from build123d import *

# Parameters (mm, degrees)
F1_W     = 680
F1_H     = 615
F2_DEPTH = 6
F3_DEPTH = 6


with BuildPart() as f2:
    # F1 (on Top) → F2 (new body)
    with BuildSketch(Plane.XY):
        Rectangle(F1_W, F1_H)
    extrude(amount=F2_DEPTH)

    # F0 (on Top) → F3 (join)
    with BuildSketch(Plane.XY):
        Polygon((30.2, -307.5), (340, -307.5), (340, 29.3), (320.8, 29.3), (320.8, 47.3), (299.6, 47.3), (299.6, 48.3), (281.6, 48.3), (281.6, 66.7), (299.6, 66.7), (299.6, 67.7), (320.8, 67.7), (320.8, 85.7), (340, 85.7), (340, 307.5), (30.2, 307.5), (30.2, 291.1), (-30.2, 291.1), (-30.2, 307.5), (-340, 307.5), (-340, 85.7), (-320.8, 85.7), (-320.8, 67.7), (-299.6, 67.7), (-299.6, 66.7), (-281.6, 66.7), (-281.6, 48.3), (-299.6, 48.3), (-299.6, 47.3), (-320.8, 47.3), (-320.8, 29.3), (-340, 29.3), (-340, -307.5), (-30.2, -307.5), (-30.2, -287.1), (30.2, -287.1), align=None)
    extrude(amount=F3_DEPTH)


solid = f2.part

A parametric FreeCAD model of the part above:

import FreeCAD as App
import Part
import Sketcher

doc = App.newDocument("Part")
params = doc.addObject("Spreadsheet::Sheet", "Params")
for row, (alias, value) in enumerate([
    ("sketch1_width", "680 mm"),
    ("sketch1_height", "615 mm"),
    ("pad1_length", "6 mm"),
    ("sketch2_width", "18 mm"),
    ("sketch2_height", "1 mm"),
    ("sketch2_width2", "309.8 mm"),
    ("sketch2_width3", "19.2 mm"),
    ("sketch2_width4", "21.2 mm"),
    ("pad2_length", "6 mm"),
], start=1):
    params.set(f"A{row}", alias)
    params.set(f"B{row}", "=" + value)
    params.setAlias(f"B{row}", alias)

body = doc.addObject("PartDesign::Body", "Body")

# Sketch on XY plane
sketch1 = doc.addObject("Sketcher::SketchObject", "Sketch")
body.addObject(sketch1)
sketch1.AttachmentSupport = (doc.XY_Plane, [""])
sketch1.MapMode = "FlatFace"
sketch1.addGeometry(Part.LineSegment(App.Vector(-340, 308, 0), App.Vector(-340, -308, 0)), False)
sketch1.addGeometry(Part.LineSegment(App.Vector(-340, -308, 0), App.Vector(340, -308, 0)), False)
sketch1.addGeometry(Part.LineSegment(App.Vector(340, -308, 0), App.Vector(340, 308, 0)), False)
sketch1.addGeometry(Part.LineSegment(App.Vector(340, 308, 0), App.Vector(-340, 308, 0)), False)
sketch1.addConstraint(Sketcher.Constraint("Coincident", 0, 2, 1, 1))
sketch1.addConstraint(Sketcher.Constraint("Coincident", 1, 2, 2, 1))
sketch1.addConstraint(Sketcher.Constraint("Coincident", 2, 2, 3, 1))
sketch1.addConstraint(Sketcher.Constraint("Coincident", 3, 2, 0, 1))
sketch1.addConstraint(Sketcher.Constraint("Vertical", 0))
sketch1.addConstraint(Sketcher.Constraint("Horizontal", 1))
sketch1.addConstraint(Sketcher.Constraint("Vertical", 2))
sketch1.addConstraint(Sketcher.Constraint("Horizontal", 3))
sketch1.addConstraint(Sketcher.Constraint("Symmetric", 0, 2, 2, 2, -1, 1))
sketch1.addConstraint(Sketcher.Constraint("DistanceX", 1, 1, 1, 2, 680.0))
sketch1.addConstraint(Sketcher.Constraint("DistanceY", 0, 2, 0, 1, 615.0))
sketch1.setExpression("Constraints[9]", "Params.sketch1_width")
sketch1.setExpression("Constraints[10]", "Params.sketch1_height")
pad1 = doc.addObject("PartDesign::Pad", "Pad")
body.addObject(pad1)
pad1.Profile = sketch1
pad1.setExpression("Length", "Params.pad1_length")

# Sketch on XY plane
sketch2 = doc.addObject("Sketcher::SketchObject", "Sketch001")
body.addObject(sketch2)
sketch2.AttachmentSupport = (doc.XY_Plane, [""])
sketch2.MapMode = "FlatFace"
sketch2.addGeometry(Part.LineSegment(App.Vector(30.2, -307.5, 0), App.Vector(340, -307.5, 0)), False)
sketch2.addGeometry(Part.LineSegment(App.Vector(340, -307.5, 0), App.Vector(340, 29.3, 0)), False)
sketch2.addGeometry(Part.LineSegment(App.Vector(340, 29.3, 0), App.Vector(320.8, 29.3, 0)), False)
sketch2.addGeometry(Part.LineSegment(App.Vector(320.8, 29.3, 0), App.Vector(320.8, 47.3, 0)), False)
sketch2.addGeometry(Part.LineSegment(App.Vector(320.8, 47.3, 0), App.Vector(299.6, 47.3, 0)), False)
sketch2.addGeometry(Part.LineSegment(App.Vector(299.6, 47.3, 0), App.Vector(299.6, 48.3, 0)), False)
sketch2.addGeometry(Part.LineSegment(App.Vector(299.6, 48.3, 0), App.Vector(281.6, 48.3, 0)), False)
sketch2.addGeometry(Part.LineSegment(App.Vector(281.6, 48.3, 0), App.Vector(281.6, 66.7, 0)), False)
sketch2.addGeometry(Part.LineSegment(App.Vector(281.6, 66.7, 0), App.Vector(299.6, 66.7, 0)), False)
sketch2.addGeometry(Part.LineSegment(App.Vector(299.6, 66.7, 0), App.Vector(299.6, 67.7, 0)), False)
sketch2.addGeometry(Part.LineSegment(App.Vector(299.6, 67.7, 0), App.Vector(320.8, 67.7, 0)), False)
sketch2.addGeometry(Part.LineSegment(App.Vector(320.8, 67.7, 0), App.Vector(320.8, 85.7, 0)), False)
sketch2.addGeometry(Part.LineSegment(App.Vector(320.8, 85.7, 0), App.Vector(340, 85.7, 0)), False)
sketch2.addGeometry(Part.LineSegment(App.Vector(340, 85.7, 0), App.Vector(340, 307.5, 0)), False)
sketch2.addGeometry(Part.LineSegment(App.Vector(340, 307.5, 0), App.Vector(30.2, 307.5, 0)), False)
sketch2.addGeometry(Part.LineSegment(App.Vector(30.2, 307.5, 0), App.Vector(30.2, 291.1, 0)), False)
sketch2.addGeometry(Part.LineSegment(App.Vector(30.2, 291.1, 0), App.Vector(-30.2, 291.1, 0)), False)
sketch2.addGeometry(Part.LineSegment(App.Vector(-30.2, 291.1, 0), App.Vector(-30.2, 307.5, 0)), False)
sketch2.addGeometry(Part.LineSegment(App.Vector(-30.2, 307.5, 0), App.Vector(-340, 307.5, 0)), False)
sketch2.addGeometry(Part.LineSegment(App.Vector(-340, 307.5, 0), App.Vector(-340, 85.7, 0)), False)
sketch2.addGeometry(Part.LineSegment(App.Vector(-340, 85.7, 0), App.Vector(-320.8, 85.7, 0)), False)
sketch2.addGeometry(Part.LineSegment(App.Vector(-320.8, 85.7, 0), App.Vector(-320.8, 67.7, 0)), False)
sketch2.addGeometry(Part.LineSegment(App.Vector(-320.8, 67.7, 0), App.Vector(-299.6, 67.7, 0)), False)
sketch2.addGeometry(Part.LineSegment(App.Vector(-299.6, 67.7, 0), App.Vector(-299.6, 66.7, 0)), False)
sketch2.addGeometry(Part.LineSegment(App.Vector(-299.6, 66.7, 0), App.Vector(-281.6, 66.7, 0)), False)
sketch2.addGeometry(Part.LineSegment(App.Vector(-281.6, 66.7, 0), App.Vector(-281.6, 48.3, 0)), False)
sketch2.addGeometry(Part.LineSegment(App.Vector(-281.6, 48.3, 0), App.Vector(-299.6, 48.3, 0)), False)
sketch2.addGeometry(Part.LineSegment(App.Vector(-299.6, 48.3, 0), App.Vector(-299.6, 47.3, 0)), False)
sketch2.addGeometry(Part.LineSegment(App.Vector(-299.6, 47.3, 0), App.Vector(-320.8, 47.3, 0)), False)
sketch2.addGeometry(Part.LineSegment(App.Vector(-320.8, 47.3, 0), App.Vector(-320.8, 29.3, 0)), False)
sketch2.addGeometry(Part.LineSegment(App.Vector(-320.8, 29.3, 0), App.Vector(-340, 29.3, 0)), False)
sketch2.addGeometry(Part.LineSegment(App.Vector(-340, 29.3, 0), App.Vector(-340, -307.5, 0)), False)
sketch2.addGeometry(Part.LineSegment(App.Vector(-340, -307.5, 0), App.Vector(-30.2, -307.5, 0)), False)
sketch2.addGeometry(Part.LineSegment(App.Vector(-30.2, -307.5, 0), App.Vector(-30.2, -287.1, 0)), False)
sketch2.addGeometry(Part.LineSegment(App.Vector(-30.2, -287.1, 0), App.Vector(30.2, -287.1, 0)), False)
sketch2.addGeometry(Part.LineSegment(App.Vector(30.2, -287.1, 0), App.Vector(30.2, -307.5, 0)), False)
sketch2.addConstraint(Sketcher.Constraint("Coincident", 0, 2, 1, 1))
sketch2.addConstraint(Sketcher.Constraint("Coincident", 1, 2, 2, 1))
sketch2.addConstraint(Sketcher.Constraint("Coincident", 2, 2, 3, 1))
sketch2.addConstraint(Sketcher.Constraint("Coincident", 3, 2, 4, 1))
sketch2.addConstraint(Sketcher.Constraint("Coincident", 4, 2, 5, 1))
sketch2.addConstraint(Sketcher.Constraint("Coincident", 5, 2, 6, 1))
sketch2.addConstraint(Sketcher.Constraint("Coincident", 6, 2, 7, 1))
sketch2.addConstraint(Sketcher.Constraint("Coincident", 7, 2, 8, 1))
sketch2.addConstraint(Sketcher.Constraint("Coincident", 8, 2, 9, 1))
sketch2.addConstraint(Sketcher.Constraint("Coincident", 9, 2, 10, 1))
sketch2.addConstraint(Sketcher.Constraint("Coincident", 10, 2, 11, 1))
sketch2.addConstraint(Sketcher.Constraint("Coincident", 11, 2, 12, 1))
sketch2.addConstraint(Sketcher.Constraint("Coincident", 12, 2, 13, 1))
sketch2.addConstraint(Sketcher.Constraint("Coincident", 13, 2, 14, 1))
sketch2.addConstraint(Sketcher.Constraint("Coincident", 14, 2, 15, 1))
sketch2.addConstraint(Sketcher.Constraint("Coincident", 15, 2, 16, 1))
sketch2.addConstraint(Sketcher.Constraint("Coincident", 16, 2, 17, 1))
sketch2.addConstraint(Sketcher.Constraint("Coincident", 17, 2, 18, 1))
sketch2.addConstraint(Sketcher.Constraint("Coincident", 18, 2, 19, 1))
sketch2.addConstraint(Sketcher.Constraint("Coincident", 19, 2, 20, 1))
sketch2.addConstraint(Sketcher.Constraint("Coincident", 20, 2, 21, 1))
sketch2.addConstraint(Sketcher.Constraint("Coincident", 21, 2, 22, 1))
sketch2.addConstraint(Sketcher.Constraint("Coincident", 22, 2, 23, 1))
sketch2.addConstraint(Sketcher.Constraint("Coincident", 23, 2, 24, 1))
sketch2.addConstraint(Sketcher.Constraint("Coincident", 24, 2, 25, 1))
sketch2.addConstraint(Sketcher.Constraint("Coincident", 25, 2, 26, 1))
sketch2.addConstraint(Sketcher.Constraint("Coincident", 26, 2, 27, 1))
sketch2.addConstraint(Sketcher.Constraint("Coincident", 27, 2, 28, 1))
sketch2.addConstraint(Sketcher.Constraint("Coincident", 28, 2, 29, 1))
sketch2.addConstraint(Sketcher.Constraint("Coincident", 29, 2, 30, 1))
sketch2.addConstraint(Sketcher.Constraint("Coincident", 30, 2, 31, 1))
sketch2.addConstraint(Sketcher.Constraint("Coincident", 31, 2, 32, 1))
sketch2.addConstraint(Sketcher.Constraint("Coincident", 32, 2, 33, 1))
sketch2.addConstraint(Sketcher.Constraint("Coincident", 33, 2, 34, 1))
sketch2.addConstraint(Sketcher.Constraint("Coincident", 34, 2, 35, 1))
sketch2.addConstraint(Sketcher.Constraint("Coincident", 35, 2, 0, 1))
sketch2.addConstraint(Sketcher.Constraint("Horizontal", 0))
sketch2.addConstraint(Sketcher.Constraint("Vertical", 1))
sketch2.addConstraint(Sketcher.Constraint("Horizontal", 2))
sketch2.addConstraint(Sketcher.Constraint("Vertical", 3))
sketch2.addConstraint(Sketcher.Constraint("Horizontal", 4))
sketch2.addConstraint(Sketcher.Constraint("Vertical", 5))
sketch2.addConstraint(Sketcher.Constraint("Horizontal", 6))
sketch2.addConstraint(Sketcher.Constraint("Vertical", 7))
sketch2.addConstraint(Sketcher.Constraint("Horizontal", 8))
sketch2.addConstraint(Sketcher.Constraint("Vertical", 9))
sketch2.addConstraint(Sketcher.Constraint("Horizontal", 10))
sketch2.addConstraint(Sketcher.Constraint("Vertical", 11))
sketch2.addConstraint(Sketcher.Constraint("Horizontal", 12))
sketch2.addConstraint(Sketcher.Constraint("Vertical", 13))
sketch2.addConstraint(Sketcher.Constraint("Horizontal", 14))
sketch2.addConstraint(Sketcher.Constraint("Vertical", 15))
sketch2.addConstraint(Sketcher.Constraint("Horizontal", 16))
sketch2.addConstraint(Sketcher.Constraint("Vertical", 17))
sketch2.addConstraint(Sketcher.Constraint("Horizontal", 18))
sketch2.addConstraint(Sketcher.Constraint("Vertical", 19))
sketch2.addConstraint(Sketcher.Constraint("Horizontal", 20))
sketch2.addConstraint(Sketcher.Constraint("Vertical", 21))
sketch2.addConstraint(Sketcher.Constraint("Horizontal", 22))
sketch2.addConstraint(Sketcher.Constraint("Vertical", 23))
sketch2.addConstraint(Sketcher.Constraint("Horizontal", 24))
sketch2.addConstraint(Sketcher.Constraint("Vertical", 25))
sketch2.addConstraint(Sketcher.Constraint("Horizontal", 26))
sketch2.addConstraint(Sketcher.Constraint("Vertical", 27))
sketch2.addConstraint(Sketcher.Constraint("Horizontal", 28))
sketch2.addConstraint(Sketcher.Constraint("Vertical", 29))
sketch2.addConstraint(Sketcher.Constraint("Horizontal", 30))
sketch2.addConstraint(Sketcher.Constraint("Vertical", 31))
sketch2.addConstraint(Sketcher.Constraint("Horizontal", 32))
sketch2.addConstraint(Sketcher.Constraint("Vertical", 33))
sketch2.addConstraint(Sketcher.Constraint("Horizontal", 34))
sketch2.addConstraint(Sketcher.Constraint("Vertical", 35))
sketch2.addConstraint(Sketcher.Constraint("Symmetric", 0, 2, 18, 2, -1, 1))
sketch2.addConstraint(Sketcher.Constraint("Symmetric", 13, 2, 31, 2, -1, 1))
sketch2.addConstraint(Sketcher.Constraint("Symmetric", 14, 2, 17, 2, -2))
sketch2.addConstraint(Sketcher.Constraint("Symmetric", 12, 2, 19, 2, -2))
sketch2.addConstraint(Sketcher.Constraint("Symmetric", 10, 2, 21, 2, -2))
sketch2.addConstraint(Sketcher.Constraint("Symmetric", 8, 2, 23, 2, -2))
sketch2.addConstraint(Sketcher.Constraint("Symmetric", 6, 2, 25, 2, -2))
sketch2.addConstraint(Sketcher.Constraint("Symmetric", 4, 2, 27, 2, -2))
sketch2.addConstraint(Sketcher.Constraint("Symmetric", 2, 2, 29, 2, -2))
sketch2.addConstraint(Sketcher.Constraint("Vertical", 5, 2, 8, 2))
sketch2.addConstraint(Sketcher.Constraint("Vertical", 3, 2, 10, 2))
sketch2.addConstraint(Sketcher.Constraint("Vertical", 17, 2, 32, 2))
sketch2.addConstraint(Sketcher.Constraint("Vertical", 15, 2, 34, 2))
sketch2.addConstraint(Sketcher.Constraint("Equal", 26, 3))
sketch2.addConstraint(Sketcher.Constraint("Equal", 5, 9))
sketch2.addConstraint(Sketcher.Constraint("Equal", 3, 11))
sketch2.addConstraint(Sketcher.Constraint("DistanceX", 6, 2, 6, 1, 18.0))
sketch2.addConstraint(Sketcher.Constraint("DistanceY", 5, 1, 5, 2, 1.0))
sketch2.addConstraint(Sketcher.Constraint("DistanceX", 0, 1, 0, 2, 309.8))
sketch2.addConstraint(Sketcher.Constraint("DistanceX", 2, 2, 2, 1, 19.2))
sketch2.addConstraint(Sketcher.Constraint("DistanceX", 4, 2, 4, 1, 21.2))
sketch2.addConstraint(Sketcher.Constraint("DistanceX", 16, 2, 16, 1, 60.4))
sketch2.addConstraint(Sketcher.Constraint("DistanceY", 1, 1, 1, 2, 336.8))
sketch2.addConstraint(Sketcher.Constraint("DistanceY", 7, 1, 7, 2, 18.4))
sketch2.addConstraint(Sketcher.Constraint("DistanceY", 13, 1, 13, 2, 221.8))
sketch2.addConstraint(Sketcher.Constraint("DistanceY", 15, 2, 15, 1, 16.4))
sketch2.addConstraint(Sketcher.Constraint("DistanceY", 33, 1, 33, 2, 20.4))
sketch2.setExpression("Constraints[88]", "Params.sketch2_width")
sketch2.setExpression("Constraints[89]", "Params.sketch2_height")
sketch2.setExpression("Constraints[90]", "Params.sketch2_width2")
sketch2.setExpression("Constraints[91]", "Params.sketch2_width3")
sketch2.setExpression("Constraints[92]", "Params.sketch2_width4")
pad2 = doc.addObject("PartDesign::Pad", "Pad001")
body.addObject(pad2)
pad2.Profile = sketch2
pad2.setExpression("Length", "Params.pad2_length")

doc.recompute()
